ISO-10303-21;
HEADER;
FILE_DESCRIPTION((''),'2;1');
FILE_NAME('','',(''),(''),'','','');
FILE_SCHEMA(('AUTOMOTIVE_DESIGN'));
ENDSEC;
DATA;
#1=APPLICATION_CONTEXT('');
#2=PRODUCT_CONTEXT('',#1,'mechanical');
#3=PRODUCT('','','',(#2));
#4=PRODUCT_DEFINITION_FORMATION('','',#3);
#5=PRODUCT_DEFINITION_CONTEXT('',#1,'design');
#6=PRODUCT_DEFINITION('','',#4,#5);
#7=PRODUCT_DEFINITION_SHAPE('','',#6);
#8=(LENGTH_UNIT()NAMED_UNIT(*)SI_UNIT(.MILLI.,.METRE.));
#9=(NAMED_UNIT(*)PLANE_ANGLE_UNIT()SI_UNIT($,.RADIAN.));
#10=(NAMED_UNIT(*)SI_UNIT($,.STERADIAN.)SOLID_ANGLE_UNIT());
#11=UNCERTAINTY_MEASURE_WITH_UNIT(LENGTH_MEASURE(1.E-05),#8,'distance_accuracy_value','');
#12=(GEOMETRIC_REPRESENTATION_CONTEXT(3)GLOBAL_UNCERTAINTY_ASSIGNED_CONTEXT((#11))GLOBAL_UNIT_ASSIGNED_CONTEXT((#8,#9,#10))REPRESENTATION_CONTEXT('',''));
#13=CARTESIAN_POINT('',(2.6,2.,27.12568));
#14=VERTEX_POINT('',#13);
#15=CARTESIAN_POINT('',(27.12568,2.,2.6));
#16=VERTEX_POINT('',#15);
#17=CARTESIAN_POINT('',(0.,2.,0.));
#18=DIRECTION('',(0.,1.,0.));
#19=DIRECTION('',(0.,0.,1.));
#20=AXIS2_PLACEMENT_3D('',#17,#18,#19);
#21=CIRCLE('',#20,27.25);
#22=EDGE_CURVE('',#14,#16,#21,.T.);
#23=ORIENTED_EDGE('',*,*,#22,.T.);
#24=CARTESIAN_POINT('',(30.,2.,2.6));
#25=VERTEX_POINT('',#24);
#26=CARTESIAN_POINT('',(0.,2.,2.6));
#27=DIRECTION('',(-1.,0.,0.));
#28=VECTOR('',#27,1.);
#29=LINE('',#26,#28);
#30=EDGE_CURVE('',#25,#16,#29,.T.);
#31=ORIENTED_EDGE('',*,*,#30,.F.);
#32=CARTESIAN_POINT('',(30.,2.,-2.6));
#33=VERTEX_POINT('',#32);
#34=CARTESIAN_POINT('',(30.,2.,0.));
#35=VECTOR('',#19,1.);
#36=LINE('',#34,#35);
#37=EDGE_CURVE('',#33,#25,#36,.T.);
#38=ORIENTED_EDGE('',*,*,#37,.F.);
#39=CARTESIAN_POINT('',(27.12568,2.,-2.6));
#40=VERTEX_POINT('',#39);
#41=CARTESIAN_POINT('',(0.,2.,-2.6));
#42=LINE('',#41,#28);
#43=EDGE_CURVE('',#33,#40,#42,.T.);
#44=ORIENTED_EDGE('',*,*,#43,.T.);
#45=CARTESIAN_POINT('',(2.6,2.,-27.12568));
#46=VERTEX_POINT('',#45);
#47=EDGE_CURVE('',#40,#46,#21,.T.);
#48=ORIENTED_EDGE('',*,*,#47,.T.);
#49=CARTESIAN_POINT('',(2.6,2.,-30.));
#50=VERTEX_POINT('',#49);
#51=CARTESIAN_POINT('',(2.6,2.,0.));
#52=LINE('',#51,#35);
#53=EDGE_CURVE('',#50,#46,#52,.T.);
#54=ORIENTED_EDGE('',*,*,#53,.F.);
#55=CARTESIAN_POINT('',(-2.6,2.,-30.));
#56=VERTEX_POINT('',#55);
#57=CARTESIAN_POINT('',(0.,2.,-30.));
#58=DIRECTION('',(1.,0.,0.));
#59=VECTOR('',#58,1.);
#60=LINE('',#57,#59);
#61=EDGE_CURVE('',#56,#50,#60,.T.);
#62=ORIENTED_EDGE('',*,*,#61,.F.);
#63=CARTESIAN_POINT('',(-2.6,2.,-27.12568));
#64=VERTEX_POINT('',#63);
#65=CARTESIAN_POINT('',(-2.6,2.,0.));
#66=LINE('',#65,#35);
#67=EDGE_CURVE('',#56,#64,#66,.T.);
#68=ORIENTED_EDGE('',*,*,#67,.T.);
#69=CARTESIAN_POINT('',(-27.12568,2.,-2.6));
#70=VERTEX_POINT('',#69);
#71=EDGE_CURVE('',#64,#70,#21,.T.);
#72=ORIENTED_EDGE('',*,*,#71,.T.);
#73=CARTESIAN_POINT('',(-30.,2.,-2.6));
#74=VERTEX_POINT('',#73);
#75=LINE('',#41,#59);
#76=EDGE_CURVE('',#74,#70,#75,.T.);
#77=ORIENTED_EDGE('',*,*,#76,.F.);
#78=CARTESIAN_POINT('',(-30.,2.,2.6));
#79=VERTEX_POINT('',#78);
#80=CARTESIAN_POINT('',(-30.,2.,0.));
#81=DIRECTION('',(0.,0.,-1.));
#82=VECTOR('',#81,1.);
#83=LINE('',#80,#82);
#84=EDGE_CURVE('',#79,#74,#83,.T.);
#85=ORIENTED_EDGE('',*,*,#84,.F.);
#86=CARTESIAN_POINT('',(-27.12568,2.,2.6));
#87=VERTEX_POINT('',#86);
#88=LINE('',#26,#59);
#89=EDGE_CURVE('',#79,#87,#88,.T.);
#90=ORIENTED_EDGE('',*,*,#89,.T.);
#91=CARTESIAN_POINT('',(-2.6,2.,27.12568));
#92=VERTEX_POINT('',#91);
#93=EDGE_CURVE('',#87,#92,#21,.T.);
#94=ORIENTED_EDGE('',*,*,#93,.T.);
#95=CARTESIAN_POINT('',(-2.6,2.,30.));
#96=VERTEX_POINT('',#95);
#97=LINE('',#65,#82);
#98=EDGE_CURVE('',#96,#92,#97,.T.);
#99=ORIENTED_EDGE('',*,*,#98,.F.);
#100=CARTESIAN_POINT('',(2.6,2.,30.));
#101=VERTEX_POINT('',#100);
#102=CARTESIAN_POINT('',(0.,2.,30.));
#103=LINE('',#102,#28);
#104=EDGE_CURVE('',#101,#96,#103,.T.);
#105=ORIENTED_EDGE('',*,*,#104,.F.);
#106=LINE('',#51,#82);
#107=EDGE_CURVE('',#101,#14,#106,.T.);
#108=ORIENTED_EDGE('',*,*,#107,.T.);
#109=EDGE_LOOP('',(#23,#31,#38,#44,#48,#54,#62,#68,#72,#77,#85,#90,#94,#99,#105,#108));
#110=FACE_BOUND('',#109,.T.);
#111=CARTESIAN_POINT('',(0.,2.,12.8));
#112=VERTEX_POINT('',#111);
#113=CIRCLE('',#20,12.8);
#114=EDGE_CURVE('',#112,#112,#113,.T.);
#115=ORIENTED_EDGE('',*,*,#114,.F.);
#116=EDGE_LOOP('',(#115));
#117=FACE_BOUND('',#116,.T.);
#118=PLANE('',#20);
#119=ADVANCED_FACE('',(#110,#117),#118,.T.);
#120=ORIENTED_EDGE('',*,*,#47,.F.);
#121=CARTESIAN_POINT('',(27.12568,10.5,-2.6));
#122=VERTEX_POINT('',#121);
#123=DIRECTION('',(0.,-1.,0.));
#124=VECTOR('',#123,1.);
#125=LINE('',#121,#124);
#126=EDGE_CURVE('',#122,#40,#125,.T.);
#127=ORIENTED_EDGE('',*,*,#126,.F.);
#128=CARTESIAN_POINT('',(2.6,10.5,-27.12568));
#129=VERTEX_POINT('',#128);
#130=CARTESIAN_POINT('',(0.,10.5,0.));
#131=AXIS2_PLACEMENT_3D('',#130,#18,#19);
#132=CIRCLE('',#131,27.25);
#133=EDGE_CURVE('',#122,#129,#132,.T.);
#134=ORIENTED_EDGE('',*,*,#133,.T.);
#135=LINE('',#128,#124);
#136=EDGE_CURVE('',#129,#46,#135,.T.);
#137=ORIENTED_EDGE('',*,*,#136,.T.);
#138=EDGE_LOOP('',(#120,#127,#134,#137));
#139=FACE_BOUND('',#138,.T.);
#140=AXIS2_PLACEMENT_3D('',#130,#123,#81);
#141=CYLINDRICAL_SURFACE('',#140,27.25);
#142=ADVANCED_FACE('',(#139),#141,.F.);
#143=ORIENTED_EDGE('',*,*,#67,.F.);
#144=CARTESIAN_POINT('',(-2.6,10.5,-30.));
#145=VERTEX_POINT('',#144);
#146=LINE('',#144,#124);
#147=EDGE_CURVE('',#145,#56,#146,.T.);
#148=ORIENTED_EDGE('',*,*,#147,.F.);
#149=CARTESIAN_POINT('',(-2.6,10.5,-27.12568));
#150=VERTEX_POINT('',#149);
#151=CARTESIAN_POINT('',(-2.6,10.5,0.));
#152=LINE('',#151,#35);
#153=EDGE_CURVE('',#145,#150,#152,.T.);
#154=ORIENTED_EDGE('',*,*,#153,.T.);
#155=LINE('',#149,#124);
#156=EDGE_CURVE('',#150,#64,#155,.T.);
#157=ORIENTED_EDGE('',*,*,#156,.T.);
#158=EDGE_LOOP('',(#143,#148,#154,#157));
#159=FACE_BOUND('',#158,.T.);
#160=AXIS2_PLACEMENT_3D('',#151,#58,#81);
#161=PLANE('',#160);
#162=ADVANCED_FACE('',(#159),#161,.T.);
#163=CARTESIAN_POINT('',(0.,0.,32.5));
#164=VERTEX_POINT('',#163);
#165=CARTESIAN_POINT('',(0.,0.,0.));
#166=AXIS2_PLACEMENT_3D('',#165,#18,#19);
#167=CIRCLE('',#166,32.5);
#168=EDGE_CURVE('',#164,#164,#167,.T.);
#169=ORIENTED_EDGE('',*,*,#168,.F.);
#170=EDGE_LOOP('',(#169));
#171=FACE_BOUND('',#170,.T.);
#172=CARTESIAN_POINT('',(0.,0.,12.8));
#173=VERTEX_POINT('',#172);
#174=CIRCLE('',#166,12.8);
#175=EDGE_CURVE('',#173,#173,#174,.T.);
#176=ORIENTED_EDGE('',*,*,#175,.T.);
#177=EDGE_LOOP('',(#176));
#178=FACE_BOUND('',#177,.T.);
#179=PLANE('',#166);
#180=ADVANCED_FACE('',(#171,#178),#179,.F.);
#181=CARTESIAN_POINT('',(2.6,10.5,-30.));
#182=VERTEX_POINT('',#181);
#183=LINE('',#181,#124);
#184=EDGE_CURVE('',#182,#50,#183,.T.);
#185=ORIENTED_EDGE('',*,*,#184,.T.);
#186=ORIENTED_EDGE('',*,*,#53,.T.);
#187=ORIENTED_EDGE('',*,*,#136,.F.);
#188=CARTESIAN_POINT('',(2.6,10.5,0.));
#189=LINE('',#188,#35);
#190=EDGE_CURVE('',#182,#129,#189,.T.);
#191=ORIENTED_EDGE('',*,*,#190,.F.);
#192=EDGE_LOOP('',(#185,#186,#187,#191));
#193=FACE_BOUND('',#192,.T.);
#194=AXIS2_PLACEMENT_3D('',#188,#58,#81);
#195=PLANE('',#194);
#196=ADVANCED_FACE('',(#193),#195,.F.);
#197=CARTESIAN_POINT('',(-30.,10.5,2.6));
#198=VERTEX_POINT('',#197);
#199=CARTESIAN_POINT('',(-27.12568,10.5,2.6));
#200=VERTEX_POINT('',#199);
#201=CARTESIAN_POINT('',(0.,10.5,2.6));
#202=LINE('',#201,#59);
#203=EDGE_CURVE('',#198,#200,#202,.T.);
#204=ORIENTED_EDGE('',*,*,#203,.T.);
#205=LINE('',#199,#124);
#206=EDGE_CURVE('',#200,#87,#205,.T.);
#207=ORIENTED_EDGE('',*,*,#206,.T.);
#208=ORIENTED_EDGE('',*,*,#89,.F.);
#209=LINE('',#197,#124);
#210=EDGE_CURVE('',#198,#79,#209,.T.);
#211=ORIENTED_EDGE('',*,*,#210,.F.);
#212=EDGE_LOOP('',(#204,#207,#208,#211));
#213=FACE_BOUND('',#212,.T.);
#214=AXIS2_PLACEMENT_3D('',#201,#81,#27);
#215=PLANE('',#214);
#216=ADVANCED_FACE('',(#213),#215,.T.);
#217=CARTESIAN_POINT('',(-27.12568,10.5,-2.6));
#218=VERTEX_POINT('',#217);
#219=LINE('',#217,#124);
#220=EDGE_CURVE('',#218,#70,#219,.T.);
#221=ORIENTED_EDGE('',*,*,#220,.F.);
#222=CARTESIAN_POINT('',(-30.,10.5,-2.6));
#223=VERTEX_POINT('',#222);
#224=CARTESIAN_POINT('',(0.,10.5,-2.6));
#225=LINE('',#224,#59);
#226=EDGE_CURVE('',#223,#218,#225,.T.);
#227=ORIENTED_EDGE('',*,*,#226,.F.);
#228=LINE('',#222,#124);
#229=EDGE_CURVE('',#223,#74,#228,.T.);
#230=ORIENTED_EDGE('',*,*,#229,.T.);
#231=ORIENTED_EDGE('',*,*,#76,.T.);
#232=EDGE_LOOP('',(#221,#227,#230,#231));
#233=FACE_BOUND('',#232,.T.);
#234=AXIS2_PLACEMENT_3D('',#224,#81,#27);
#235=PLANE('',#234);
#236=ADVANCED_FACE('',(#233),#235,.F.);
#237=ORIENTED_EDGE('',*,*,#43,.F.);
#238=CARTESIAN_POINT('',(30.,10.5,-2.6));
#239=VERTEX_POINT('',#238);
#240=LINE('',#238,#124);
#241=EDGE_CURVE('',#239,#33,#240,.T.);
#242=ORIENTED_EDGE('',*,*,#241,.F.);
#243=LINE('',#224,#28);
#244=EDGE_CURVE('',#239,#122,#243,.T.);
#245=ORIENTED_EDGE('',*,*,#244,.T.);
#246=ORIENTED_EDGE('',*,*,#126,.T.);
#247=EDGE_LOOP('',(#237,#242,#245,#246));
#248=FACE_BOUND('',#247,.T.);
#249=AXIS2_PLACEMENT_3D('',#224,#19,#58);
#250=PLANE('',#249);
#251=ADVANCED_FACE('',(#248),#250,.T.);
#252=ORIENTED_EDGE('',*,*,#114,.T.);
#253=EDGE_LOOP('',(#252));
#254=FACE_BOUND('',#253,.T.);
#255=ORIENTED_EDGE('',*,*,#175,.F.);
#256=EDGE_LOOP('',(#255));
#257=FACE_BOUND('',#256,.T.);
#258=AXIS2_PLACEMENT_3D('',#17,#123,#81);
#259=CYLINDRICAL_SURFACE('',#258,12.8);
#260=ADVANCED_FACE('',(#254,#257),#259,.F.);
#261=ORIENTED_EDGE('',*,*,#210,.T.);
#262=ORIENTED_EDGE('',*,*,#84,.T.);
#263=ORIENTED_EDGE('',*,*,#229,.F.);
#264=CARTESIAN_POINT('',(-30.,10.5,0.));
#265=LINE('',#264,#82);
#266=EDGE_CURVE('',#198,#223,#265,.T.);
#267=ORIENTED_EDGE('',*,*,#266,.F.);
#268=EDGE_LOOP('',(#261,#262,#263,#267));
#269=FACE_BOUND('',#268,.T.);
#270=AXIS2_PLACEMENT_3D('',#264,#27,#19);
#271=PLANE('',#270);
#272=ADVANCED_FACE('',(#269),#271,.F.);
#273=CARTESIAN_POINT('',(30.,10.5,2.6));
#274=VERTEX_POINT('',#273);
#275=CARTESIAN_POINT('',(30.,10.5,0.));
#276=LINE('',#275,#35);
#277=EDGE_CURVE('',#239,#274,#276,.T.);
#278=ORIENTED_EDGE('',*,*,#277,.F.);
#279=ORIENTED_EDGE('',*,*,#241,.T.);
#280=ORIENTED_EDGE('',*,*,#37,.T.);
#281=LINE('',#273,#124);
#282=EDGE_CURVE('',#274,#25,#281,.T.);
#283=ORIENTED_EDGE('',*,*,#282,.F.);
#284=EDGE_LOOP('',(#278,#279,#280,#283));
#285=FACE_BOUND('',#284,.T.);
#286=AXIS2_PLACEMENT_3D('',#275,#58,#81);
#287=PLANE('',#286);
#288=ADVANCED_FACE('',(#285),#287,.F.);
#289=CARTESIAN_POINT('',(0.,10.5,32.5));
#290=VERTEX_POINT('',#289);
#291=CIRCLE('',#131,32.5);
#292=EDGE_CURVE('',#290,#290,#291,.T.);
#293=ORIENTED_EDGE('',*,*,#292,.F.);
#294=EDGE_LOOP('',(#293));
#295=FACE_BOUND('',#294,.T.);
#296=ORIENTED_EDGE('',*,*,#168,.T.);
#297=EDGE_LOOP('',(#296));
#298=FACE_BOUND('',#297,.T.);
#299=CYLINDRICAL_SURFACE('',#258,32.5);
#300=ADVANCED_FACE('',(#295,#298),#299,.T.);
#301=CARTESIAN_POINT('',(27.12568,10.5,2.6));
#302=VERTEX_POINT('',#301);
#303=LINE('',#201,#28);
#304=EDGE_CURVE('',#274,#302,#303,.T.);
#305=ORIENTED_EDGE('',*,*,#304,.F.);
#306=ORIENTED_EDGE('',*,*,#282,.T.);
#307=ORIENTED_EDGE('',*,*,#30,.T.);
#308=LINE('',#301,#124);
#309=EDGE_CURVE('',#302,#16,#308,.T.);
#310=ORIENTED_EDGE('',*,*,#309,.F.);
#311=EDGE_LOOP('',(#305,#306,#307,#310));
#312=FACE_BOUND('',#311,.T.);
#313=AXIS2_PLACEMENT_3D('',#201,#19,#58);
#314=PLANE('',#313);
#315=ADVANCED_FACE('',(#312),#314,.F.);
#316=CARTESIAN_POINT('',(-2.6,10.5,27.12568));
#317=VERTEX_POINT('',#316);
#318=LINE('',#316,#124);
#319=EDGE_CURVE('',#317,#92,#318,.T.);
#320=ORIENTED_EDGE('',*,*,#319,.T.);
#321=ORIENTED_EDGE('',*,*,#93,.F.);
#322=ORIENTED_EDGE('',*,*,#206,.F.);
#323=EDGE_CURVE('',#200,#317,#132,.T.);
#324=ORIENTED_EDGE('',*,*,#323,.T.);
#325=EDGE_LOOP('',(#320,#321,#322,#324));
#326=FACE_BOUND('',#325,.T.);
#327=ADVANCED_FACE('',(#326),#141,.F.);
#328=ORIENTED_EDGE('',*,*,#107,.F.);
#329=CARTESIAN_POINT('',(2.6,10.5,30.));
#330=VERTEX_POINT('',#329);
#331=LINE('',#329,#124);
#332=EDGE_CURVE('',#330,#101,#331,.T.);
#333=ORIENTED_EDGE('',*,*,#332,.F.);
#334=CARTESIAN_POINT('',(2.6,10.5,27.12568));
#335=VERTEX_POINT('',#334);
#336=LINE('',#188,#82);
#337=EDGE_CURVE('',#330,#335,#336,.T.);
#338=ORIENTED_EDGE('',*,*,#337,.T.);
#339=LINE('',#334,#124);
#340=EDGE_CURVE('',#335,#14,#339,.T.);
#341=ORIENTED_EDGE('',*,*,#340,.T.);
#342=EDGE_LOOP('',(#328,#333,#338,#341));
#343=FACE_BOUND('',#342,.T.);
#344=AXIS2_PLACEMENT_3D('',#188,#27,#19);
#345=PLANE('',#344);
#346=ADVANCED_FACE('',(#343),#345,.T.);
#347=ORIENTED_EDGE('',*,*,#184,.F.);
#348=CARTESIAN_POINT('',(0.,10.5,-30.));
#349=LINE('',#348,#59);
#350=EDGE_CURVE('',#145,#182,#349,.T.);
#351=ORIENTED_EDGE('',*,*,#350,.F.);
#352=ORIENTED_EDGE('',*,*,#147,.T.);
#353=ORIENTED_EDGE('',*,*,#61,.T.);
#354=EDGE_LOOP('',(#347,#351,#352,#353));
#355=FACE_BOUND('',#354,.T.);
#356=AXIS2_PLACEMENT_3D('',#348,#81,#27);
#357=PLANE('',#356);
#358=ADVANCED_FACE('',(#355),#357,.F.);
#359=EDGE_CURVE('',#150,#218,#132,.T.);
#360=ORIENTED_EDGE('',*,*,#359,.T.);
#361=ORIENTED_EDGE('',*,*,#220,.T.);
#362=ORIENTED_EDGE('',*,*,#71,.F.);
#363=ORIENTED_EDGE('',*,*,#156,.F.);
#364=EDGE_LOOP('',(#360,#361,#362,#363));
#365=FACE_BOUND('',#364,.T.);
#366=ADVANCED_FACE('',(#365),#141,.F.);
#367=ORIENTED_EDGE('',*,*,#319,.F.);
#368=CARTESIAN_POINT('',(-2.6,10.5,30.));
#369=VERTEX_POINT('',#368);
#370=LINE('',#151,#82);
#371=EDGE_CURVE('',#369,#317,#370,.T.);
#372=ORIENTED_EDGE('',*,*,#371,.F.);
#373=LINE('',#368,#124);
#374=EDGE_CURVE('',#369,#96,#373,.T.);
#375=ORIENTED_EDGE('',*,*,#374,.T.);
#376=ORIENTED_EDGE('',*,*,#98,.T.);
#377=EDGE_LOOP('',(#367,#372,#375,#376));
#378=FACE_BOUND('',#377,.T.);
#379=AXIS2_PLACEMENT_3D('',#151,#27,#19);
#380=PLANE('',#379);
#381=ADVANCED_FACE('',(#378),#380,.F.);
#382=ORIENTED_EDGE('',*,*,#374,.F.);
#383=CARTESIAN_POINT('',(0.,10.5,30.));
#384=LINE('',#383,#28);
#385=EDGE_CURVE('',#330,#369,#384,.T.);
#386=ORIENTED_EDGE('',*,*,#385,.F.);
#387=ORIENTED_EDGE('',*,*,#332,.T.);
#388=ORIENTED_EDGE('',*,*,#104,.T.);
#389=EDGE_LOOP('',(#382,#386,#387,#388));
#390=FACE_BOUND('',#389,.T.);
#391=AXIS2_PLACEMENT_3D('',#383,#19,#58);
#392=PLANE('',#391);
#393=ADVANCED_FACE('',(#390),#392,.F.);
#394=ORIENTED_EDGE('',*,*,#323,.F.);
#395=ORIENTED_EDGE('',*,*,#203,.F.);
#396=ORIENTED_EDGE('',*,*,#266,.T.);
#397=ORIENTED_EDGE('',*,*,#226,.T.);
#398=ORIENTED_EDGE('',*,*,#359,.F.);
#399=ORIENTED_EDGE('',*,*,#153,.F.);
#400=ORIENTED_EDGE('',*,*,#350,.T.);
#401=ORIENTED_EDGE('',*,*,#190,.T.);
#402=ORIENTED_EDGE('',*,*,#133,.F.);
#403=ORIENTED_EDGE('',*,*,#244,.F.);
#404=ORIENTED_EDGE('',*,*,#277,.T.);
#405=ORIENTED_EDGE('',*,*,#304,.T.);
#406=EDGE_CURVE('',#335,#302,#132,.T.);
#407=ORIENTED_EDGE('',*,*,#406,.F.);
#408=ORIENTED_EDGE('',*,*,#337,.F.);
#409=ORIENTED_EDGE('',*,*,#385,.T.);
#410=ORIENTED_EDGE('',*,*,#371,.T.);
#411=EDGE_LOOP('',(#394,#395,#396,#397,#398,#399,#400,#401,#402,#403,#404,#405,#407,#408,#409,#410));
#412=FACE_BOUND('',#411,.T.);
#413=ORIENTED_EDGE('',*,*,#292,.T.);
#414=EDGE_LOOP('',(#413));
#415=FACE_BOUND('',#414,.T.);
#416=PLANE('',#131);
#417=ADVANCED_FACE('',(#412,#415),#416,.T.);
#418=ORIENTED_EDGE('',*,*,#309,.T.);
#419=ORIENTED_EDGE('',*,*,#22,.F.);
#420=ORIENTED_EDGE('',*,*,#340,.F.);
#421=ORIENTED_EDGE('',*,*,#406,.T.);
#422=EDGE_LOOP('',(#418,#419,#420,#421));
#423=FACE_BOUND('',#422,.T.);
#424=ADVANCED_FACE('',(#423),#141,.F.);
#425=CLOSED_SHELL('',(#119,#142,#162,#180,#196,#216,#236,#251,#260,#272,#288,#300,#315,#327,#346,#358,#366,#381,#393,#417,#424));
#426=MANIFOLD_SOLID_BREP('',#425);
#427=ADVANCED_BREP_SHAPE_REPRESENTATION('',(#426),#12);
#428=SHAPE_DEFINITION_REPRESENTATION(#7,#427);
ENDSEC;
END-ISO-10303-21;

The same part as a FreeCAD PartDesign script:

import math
import FreeCAD as App
import Part
import Sketcher
from FreeCAD import Vector
Q = App.Units.Quantity

doc = App.newDocument("Part")
params = doc.addObject("Spreadsheet::Sheet", "Params")
for row, (alias, value) in enumerate([
    ("sketch1_diameter", "65 mm"),
    ("sketch1_diameter2", "25.6 mm"),
    ("pad1_length", "2 mm"),
    ("sketch2_diameter", "65 mm"),
    ("sketch2_radius", "27.25 mm"),
    ("sketch2_width", "5.2 mm"),
    ("pad2_length", "8.5 mm"),
], start=1):
    params.set(f"A{row}", alias)
    params.set(f"B{row}", "=" + value)
    params.setAlias(f"B{row}", alias)

body = doc.addObject("PartDesign::Body", "Body")

# Sketch on XZ plane
sketch1 = body.newObject("Sketcher::SketchObject", "Sketch")
sketch1.AttachmentSupport = (doc.getObject("XZ_Plane"), [""])
sketch1.MapMode = "FlatFace"
sketch1.addGeometry([
    Part.Circle(Vector(0, 0, 0), Vector(0, 0, 1), 32.5),
    Part.Circle(Vector(0, 0, 0), Vector(0, 0, 1), 12.8),
], False)
sketch1.addConstraint([
    Sketcher.Constraint("Coincident", 0, 3, -1, 1),
    Sketcher.Constraint("Coincident", 1, 3, -1, 1),
    Sketcher.Constraint("Diameter", 0, Q("65 mm")),
    Sketcher.Constraint("Diameter", 1, Q("25.6 mm")),
])
sketch1.setExpression("Constraints[2]", "Params.sketch1_diameter")
sketch1.setExpression("Constraints[3]", "Params.sketch1_diameter2")
pad1 = body.newObject("PartDesign::Pad", "Pad")
pad1.Profile = sketch1
pad1.setExpression("Length", "Params.pad1_length")
pad1.Reversed = True

# Sketch on XZ plane
sketch2 = body.newObject("Sketcher::SketchObject", "Sketch001")
sketch2.AttachmentSupport = (doc.getObject("XZ_Plane"), [""])
sketch2.MapMode = "FlatFace"
sketch2.AttachmentOffset = App.Placement(Vector(0, 0, -2), App.Rotation())
sketch2.addGeometry([
    Part.Circle(Vector(0, 0, 0), Vector(0, 0, 1), 32.5),  # 0
    Part.ArcOfCircle(Part.Circle(Vector(0, 0, 0), Vector(0, 0, 1), 27.25), math.radians(5.475082), math.radians(84.524918)),  # 1
    Part.LineSegment(Vector(2.6, 27.12568, 0), Vector(2.6, 30, 0)),  # 2
    Part.LineSegment(Vector(2.6, 30, 0), Vector(-2.6, 30, 0)),  # 3
    Part.LineSegment(Vector(-2.6, 30, 0), Vector(-2.6, 27.12568, 0)),  # 4
    Part.ArcOfCircle(Part.Circle(Vector(0, 0, 0), Vector(0, 0, 1), 27.25), math.radians(95.475082), math.radians(174.524918)),  # 5
    Part.LineSegment(Vector(-27.12568, 2.6, 0), Vector(-30, 2.6, 0)),  # 6
    Part.LineSegment(Vector(-30, 2.6, 0), Vector(-30, -2.6, 0)),  # 7
    Part.LineSegment(Vector(-30, -2.6, 0), Vector(-27.12568, -2.6, 0)),  # 8
    Part.ArcOfCircle(Part.Circle(Vector(0, 0, 0), Vector(0, 0, 1), 27.25), math.radians(-174.524918), math.radians(-95.475082)),  # 9
    Part.LineSegment(Vector(-2.6, -27.12568, 0), Vector(-2.6, -30, 0)),  # 10
    Part.LineSegment(Vector(-2.6, -30, 0), Vector(2.6, -30, 0)),  # 11
    Part.LineSegment(Vector(2.6, -30, 0), Vector(2.6, -27.12568, 0)),  # 12
    Part.ArcOfCircle(Part.Circle(Vector(0, 0, 0), Vector(0, 0, 1), 27.25), math.radians(-84.524918), math.radians(-5.475082)),  # 13
    Part.LineSegment(Vector(27.12568, -2.6, 0), Vector(30, -2.6, 0)),  # 14
    Part.LineSegment(Vector(30, -2.6, 0), Vector(30, 2.6, 0)),  # 15
    Part.LineSegment(Vector(30, 2.6, 0), Vector(27.12568, 2.6, 0)),  # 16
], False)
sketch2.addConstraint([
    Sketcher.Constraint("Coincident", 1, 2, 2, 1),
    Sketcher.Constraint("Coincident", 2, 2, 3, 1),
    Sketcher.Constraint("Coincident", 3, 2, 4, 1),
    Sketcher.Constraint("Coincident", 4, 2, 5, 1),
    Sketcher.Constraint("Coincident", 5, 2, 6, 1),
    Sketcher.Constraint("Coincident", 6, 2, 7, 1),
    Sketcher.Constraint("Coincident", 7, 2, 8, 1),
    Sketcher.Constraint("Coincident", 8, 2, 9, 1),
    Sketcher.Constraint("Coincident", 9, 2, 10, 1),
    Sketcher.Constraint("Coincident", 10, 2, 11, 1),
    Sketcher.Constraint("Coincident", 11, 2, 12, 1),
    Sketcher.Constraint("Coincident", 12, 2, 13, 1),
    Sketcher.Constraint("Coincident", 13, 2, 14, 1),
    Sketcher.Constraint("Coincident", 14, 2, 15, 1),
    Sketcher.Constraint("Coincident", 15, 2, 16, 1),
    Sketcher.Constraint("Coincident", 16, 2, 1, 1),
    Sketcher.Constraint("Vertical", 2),
    Sketcher.Constraint("Horizontal", 3),
    Sketcher.Constraint("Vertical", 4),
    Sketcher.Constraint("Horizontal", 6),
    Sketcher.Constraint("Vertical", 7),
    Sketcher.Constraint("Horizontal", 8),
    Sketcher.Constraint("Vertical", 10),
    Sketcher.Constraint("Horizontal", 11),
    Sketcher.Constraint("Vertical", 12),
    Sketcher.Constraint("Horizontal", 14),
    Sketcher.Constraint("Vertical", 15),
    Sketcher.Constraint("Horizontal", 16),
    Sketcher.Constraint("Coincident", 0, 3, -1, 1),
    Sketcher.Constraint("Coincident", 1, 3, -1, 1),
    Sketcher.Constraint("Coincident", 5, 3, -1, 1),
    Sketcher.Constraint("Coincident", 9, 3, -1, 1),
    Sketcher.Constraint("Coincident", 13, 3, -1, 1),
    Sketcher.Constraint("Equal", 1, 5),
    Sketcher.Constraint("Equal", 5, 9),
    Sketcher.Constraint("Equal", 9, 13),
    Sketcher.Constraint("Symmetric", 2, 2, 10, 2, -1, 1),
    Sketcher.Constraint("Symmetric", 6, 2, 14, 2, -1, 1),
    Sketcher.Constraint("Horizontal", 1, 2, 4, 2),
    Sketcher.Constraint("Horizontal", 9, 2, 12, 2),
    Sketcher.Constraint("Horizontal", 8, 2, 13, 2),
    Sketcher.Constraint("Horizontal", 6, 2, 15, 2),
    Sketcher.Constraint("Equal", 16, 2),
    Sketcher.Constraint("Equal", 11, 7),
    Sketcher.Constraint("Diameter", 0, Q("65 mm")),
    Sketcher.Constraint("Radius", 1, Q("27.25 mm")),
    Sketcher.Constraint("DistanceX", 3, 2, 3, 1, Q("5.2 mm")),
    Sketcher.Constraint("DistanceY", -1, 1, 2, 2, Q("30 mm")),
])
sketch2.setExpression("Constraints[44]", "Params.sketch2_diameter")
sketch2.setExpression("Constraints[45]", "Params.sketch2_radius")
sketch2.setExpression("Constraints[46]", "Params.sketch2_width")
pad2 = body.newObject("PartDesign::Pad", "Pad001")
pad2.Profile = sketch2
pad2.setExpression("Length", "Params.pad2_length")
pad2.Reversed = True

doc.recompute()
